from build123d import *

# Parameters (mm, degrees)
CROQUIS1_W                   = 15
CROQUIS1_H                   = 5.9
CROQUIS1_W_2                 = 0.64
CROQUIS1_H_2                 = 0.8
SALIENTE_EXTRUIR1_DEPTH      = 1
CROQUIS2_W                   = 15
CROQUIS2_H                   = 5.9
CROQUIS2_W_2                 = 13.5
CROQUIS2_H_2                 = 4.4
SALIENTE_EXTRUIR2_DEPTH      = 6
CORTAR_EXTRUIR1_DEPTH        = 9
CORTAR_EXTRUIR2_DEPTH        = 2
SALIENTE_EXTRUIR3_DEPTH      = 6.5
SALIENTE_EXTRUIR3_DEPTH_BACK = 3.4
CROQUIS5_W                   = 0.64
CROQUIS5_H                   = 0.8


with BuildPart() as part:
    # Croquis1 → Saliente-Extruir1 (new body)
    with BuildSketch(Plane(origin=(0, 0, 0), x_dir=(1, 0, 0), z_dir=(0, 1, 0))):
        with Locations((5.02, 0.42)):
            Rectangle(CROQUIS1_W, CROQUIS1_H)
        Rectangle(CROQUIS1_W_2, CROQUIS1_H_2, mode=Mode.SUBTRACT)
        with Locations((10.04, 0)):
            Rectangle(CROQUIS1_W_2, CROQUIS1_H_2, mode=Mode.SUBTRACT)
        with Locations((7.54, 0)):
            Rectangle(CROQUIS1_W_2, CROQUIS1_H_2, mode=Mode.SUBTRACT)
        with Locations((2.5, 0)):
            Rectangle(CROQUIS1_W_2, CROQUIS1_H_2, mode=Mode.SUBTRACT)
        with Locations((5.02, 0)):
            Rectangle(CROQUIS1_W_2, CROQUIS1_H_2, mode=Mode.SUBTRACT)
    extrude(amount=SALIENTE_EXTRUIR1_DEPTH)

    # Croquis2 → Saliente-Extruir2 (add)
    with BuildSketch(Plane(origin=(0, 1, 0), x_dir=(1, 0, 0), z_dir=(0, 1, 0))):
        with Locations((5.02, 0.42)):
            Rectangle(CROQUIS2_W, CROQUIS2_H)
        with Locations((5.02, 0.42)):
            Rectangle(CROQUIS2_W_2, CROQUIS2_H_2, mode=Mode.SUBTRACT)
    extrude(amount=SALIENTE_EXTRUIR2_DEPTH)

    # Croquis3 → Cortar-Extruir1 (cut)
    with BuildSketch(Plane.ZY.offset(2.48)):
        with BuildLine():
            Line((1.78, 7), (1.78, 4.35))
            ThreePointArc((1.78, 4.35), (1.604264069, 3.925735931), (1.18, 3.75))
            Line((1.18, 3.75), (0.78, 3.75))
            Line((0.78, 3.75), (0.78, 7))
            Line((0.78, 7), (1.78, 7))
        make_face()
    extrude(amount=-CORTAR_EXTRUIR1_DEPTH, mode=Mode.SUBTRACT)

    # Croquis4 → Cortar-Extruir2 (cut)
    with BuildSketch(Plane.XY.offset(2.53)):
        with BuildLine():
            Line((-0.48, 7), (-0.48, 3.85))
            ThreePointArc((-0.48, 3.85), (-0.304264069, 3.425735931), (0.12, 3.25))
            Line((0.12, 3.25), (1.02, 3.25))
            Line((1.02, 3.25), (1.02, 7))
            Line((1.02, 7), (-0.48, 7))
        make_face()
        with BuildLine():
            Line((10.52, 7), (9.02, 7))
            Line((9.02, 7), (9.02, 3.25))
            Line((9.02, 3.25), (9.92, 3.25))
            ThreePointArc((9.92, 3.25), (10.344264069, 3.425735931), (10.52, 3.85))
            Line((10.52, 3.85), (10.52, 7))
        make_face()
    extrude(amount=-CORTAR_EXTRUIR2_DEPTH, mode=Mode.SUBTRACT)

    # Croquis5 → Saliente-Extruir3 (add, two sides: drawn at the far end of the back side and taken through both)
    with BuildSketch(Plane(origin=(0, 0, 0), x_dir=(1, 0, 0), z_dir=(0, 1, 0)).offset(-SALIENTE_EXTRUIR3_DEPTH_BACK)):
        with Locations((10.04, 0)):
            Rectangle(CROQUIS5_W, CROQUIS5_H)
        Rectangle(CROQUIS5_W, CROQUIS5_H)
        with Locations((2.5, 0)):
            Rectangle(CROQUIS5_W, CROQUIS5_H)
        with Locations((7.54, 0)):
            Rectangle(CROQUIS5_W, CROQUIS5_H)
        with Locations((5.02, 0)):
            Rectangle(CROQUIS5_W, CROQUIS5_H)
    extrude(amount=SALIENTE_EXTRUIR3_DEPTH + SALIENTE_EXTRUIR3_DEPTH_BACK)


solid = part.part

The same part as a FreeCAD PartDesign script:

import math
import FreeCAD as App
import Part
import Sketcher

V = App.Vector
Q = App.Units.Quantity

doc = App.newDocument("Part")
body = doc.addObject("PartDesign::Body", "Body")

# Sketch on XZ plane
sketch1 = body.newObject("Sketcher::SketchObject", "Sketch")
sketch1.AttachmentSupport = (doc.getObject("XZ_Plane"), [""])
sketch1.MapMode = "FlatFace"
sketch1.addGeometry(Part.LineSegment(V(-2.5, -3.4, 0), V(-2.5, 2.5, 0)), False)
sketch1.addGeometry(Part.LineSegment(V(-2.5, 2.5, 0), V(12.5, 2.5, 0)), False)
sketch1.addGeometry(Part.LineSegment(V(12.5, 2.5, 0), V(12.5, -3.4, 0)), False)
sketch1.addGeometry(Part.LineSegment(V(12.5, -3.4, 0), V(-2.5, -3.4, 0)), False)
sketch1.addGeometry(Part.LineSegment(V(0.3, 0.4, 0), V(-0.3, 0.4, 0)), False)
sketch1.addGeometry(Part.LineSegment(V(-0.3, 0.4, 0), V(-0.3, -0.4, 0)), False)
sketch1.addGeometry(Part.LineSegment(V(-0.3, -0.4, 0), V(0.3, -0.4, 0)), False)
sketch1.addGeometry(Part.LineSegment(V(0.3, -0.4, 0), V(0.3, 0.4, 0)), False)
sketch1.addGeometry(Part.LineSegment(V(2.8, 0.4, 0), V(2.2, 0.4, 0)), False)
sketch1.addGeometry(Part.LineSegment(V(2.2, 0.4, 0), V(2.2, -0.4, 0)), False)
sketch1.addGeometry(Part.LineSegment(V(2.2, -0.4, 0), V(2.8, -0.4, 0)), False)
sketch1.addGeometry(Part.LineSegment(V(2.8, -0.4, 0), V(2.8, 0.4, 0)), False)
sketch1.addGeometry(Part.LineSegment(V(5.3, 0.4, 0), V(4.7, 0.4, 0)), False)
sketch1.addGeometry(Part.LineSegment(V(4.7, 0.4, 0), V(4.7, -0.4, 0)), False)
sketch1.addGeometry(Part.LineSegment(V(4.7, -0.4, 0), V(5.3, -0.4, 0)), False)
sketch1.addGeometry(Part.LineSegment(V(5.3, -0.4, 0), V(5.3, 0.4, 0)), False)
sketch1.addGeometry(Part.LineSegment(V(7.9, 0.4, 0), V(7.2, 0.4, 0)), False)
sketch1.addGeometry(Part.LineSegment(V(7.2, 0.4, 0), V(7.2, -0.4, 0)), False)
sketch1.addGeometry(Part.LineSegment(V(7.2, -0.4, 0), V(7.9, -0.4, 0)), False)
sketch1.addGeometry(Part.LineSegment(V(7.9, -0.4, 0), V(7.9, 0.4, 0)), False)
sketch1.addGeometry(Part.LineSegment(V(10.4, 0.4, 0), V(9.7, 0.4, 0)), False)
sketch1.addGeometry(Part.LineSegment(V(9.7, 0.4, 0), V(9.7, -0.4, 0)), False)
sketch1.addGeometry(Part.LineSegment(V(9.7, -0.4, 0), V(10.4, -0.4, 0)), False)
sketch1.addGeometry(Part.LineSegment(V(10.4, -0.4, 0), V(10.4, 0.4, 0)), False)
sketch1.addConstraint(Sketcher.Constraint("Coincident", 0, 2, 1, 1))
sketch1.addConstraint(Sketcher.Constraint("Coincident", 1, 2, 2, 1))
sketch1.addConstraint(Sketcher.Constraint("Coincident", 2, 2, 3, 1))
sketch1.addConstraint(Sketcher.Constraint("Coincident", 3, 2, 0, 1))
sketch1.addConstraint(Sketcher.Constraint("Coincident", 4, 2, 5, 1))
sketch1.addConstraint(Sketcher.Constraint("Coincident", 5, 2, 6, 1))
sketch1.addConstraint(Sketcher.Constraint("Coincident", 6, 2, 7, 1))
sketch1.addConstraint(Sketcher.Constraint("Coincident", 7, 2, 4, 1))
sketch1.addConstraint(Sketcher.Constraint("Coincident", 8, 2, 9, 1))
sketch1.addConstraint(Sketcher.Constraint("Coincident", 9, 2, 10, 1))
sketch1.addConstraint(Sketcher.Constraint("Coincident", 10, 2, 11, 1))
sketch1.addConstraint(Sketcher.Constraint("Coincident", 11, 2, 8, 1))
sketch1.addConstraint(Sketcher.Constraint("Coincident", 12, 2, 13, 1))
sketch1.addConstraint(Sketcher.Constraint("Coincident", 13, 2, 14, 1))
sketch1.addConstraint(Sketcher.Constraint("Coincident", 14, 2, 15, 1))
sketch1.addConstraint(Sketcher.Constraint("Coincident", 15, 2, 12, 1))
sketch1.addConstraint(Sketcher.Constraint("Coincident", 16, 2, 17, 1))
sketch1.addConstraint(Sketcher.Constraint("Coincident", 17, 2, 18, 1))
sketch1.addConstraint(Sketcher.Constraint("Coincident", 18, 2, 19, 1))
sketch1.addConstraint(Sketcher.Constraint("Coincident", 19, 2, 16, 1))
sketch1.addConstraint(Sketcher.Constraint("Coincident", 20, 2, 21, 1))
sketch1.addConstraint(Sketcher.Constraint("Coincident", 21, 2, 22, 1))
sketch1.addConstraint(Sketcher.Constraint("Coincident", 22, 2, 23, 1))
sketch1.addConstraint(Sketcher.Constraint("Coincident", 23, 2, 20, 1))
sketch1.addConstraint(Sketcher.Constraint("Vertical", 0))
sketch1.addConstraint(Sketcher.Constraint("Horizontal", 1))
sketch1.addConstraint(Sketcher.Constraint("Vertical", 2))
sketch1.addConstraint(Sketcher.Constraint("Horizontal", 3))
sketch1.addConstraint(Sketcher.Constraint("Horizontal", 4))
sketch1.addConstraint(Sketcher.Constraint("Vertical", 5))
sketch1.addConstraint(Sketcher.Constraint("Horizontal", 6))
sketch1.addConstraint(Sketcher.Constraint("Vertical", 7))
sketch1.addConstraint(Sketcher.Constraint("Horizontal", 8))
sketch1.addConstraint(Sketcher.Constraint("Vertical", 9))
sketch1.addConstraint(Sketcher.Constraint("Horizontal", 10))
sketch1.addConstraint(Sketcher.Constraint("Vertical", 11))
sketch1.addConstraint(Sketcher.Constraint("Horizontal", 12))
sketch1.addConstraint(Sketcher.Constraint("Vertical", 13))
sketch1.addConstraint(Sketcher.Constraint("Horizontal", 14))
sketch1.addConstraint(Sketcher.Constraint("Vertical", 15))
sketch1.addConstraint(Sketcher.Constraint("Horizontal", 16))
sketch1.addConstraint(Sketcher.Constraint("Vertical", 17))
sketch1.addConstraint(Sketcher.Constraint("Horizontal", 18))
sketch1.addConstraint(Sketcher.Constraint("Vertical", 19))
sketch1.addConstraint(Sketcher.Constraint("Horizontal", 20))
sketch1.addConstraint(Sketcher.Constraint("Vertical", 21))
sketch1.addConstraint(Sketcher.Constraint("Horizontal", 22))
sketch1.addConstraint(Sketcher.Constraint("Vertical", 23))
sketch1.addConstraint(Sketcher.Constraint("Symmetric", 4, 2, 6, 2, -1, 1))
sketch1.addConstraint(Sketcher.Constraint("Horizontal", 7, 2, 8, 2))
sketch1.addConstraint(Sketcher.Constraint("Horizontal", 6, 2, 9, 2))
sketch1.addConstraint(Sketcher.Constraint("Horizontal", 11, 2, 12, 2))
sketch1.addConstraint(Sketcher.Constraint("Horizontal", 10, 2, 13, 2))
sketch1.addConstraint(Sketcher.Constraint("Horizontal", 15, 2, 16, 2))
sketch1.addConstraint(Sketcher.Constraint("Horizontal", 14, 2, 17, 2))
sketch1.addConstraint(Sketcher.Constraint("Horizontal", 19, 2, 20, 2))
sketch1.addConstraint(Sketcher.Constraint("Horizontal", 18, 2, 21, 2))
sketch1.addConstraint(Sketcher.Constraint("Equal", 6, 8))
sketch1.addConstraint(Sketcher.Constraint("Equal", 10, 12))
sketch1.addConstraint(Sketcher.Constraint("Equal", 14, 16))
sketch1.addConstraint(Sketcher.Constraint("Equal", 18, 20))
sketch1.addConstraint(Sketcher.Constraint("DistanceX", 1, 1, 1, 2, Q("15 mm")))
sketch1.addConstraint(Sketcher.Constraint("DistanceY", 0, 1, 0, 2, Q("5.9 mm")))
sketch1.addConstraint(Sketcher.Constraint("DistanceY", 5, 2, 5, 1, Q("0.8 mm")))
sketch1.addConstraint(Sketcher.Constraint("DistanceX", 4, 2, 4, 1, Q("0.64 mm")))
sketch1.addConstraint(Sketcher.Constraint("DistanceX", -1, 1, 12, 2, Q("4.7 mm")))
sketch1.addConstraint(Sketcher.Constraint("DistanceX", 0, 2, 6, 2, Q("2.8 mm")))
sketch1.addConstraint(Sketcher.Constraint("DistanceX", 4, 2, 8, 2, Q("2.5 mm")))
sketch1.addConstraint(Sketcher.Constraint("DistanceX", 11, 2, 16, 2, Q("4.4 mm")))
sketch1.addConstraint(Sketcher.Constraint("DistanceX", 16, 2, 20, 2, Q("2.5 mm")))
sketch1.addConstraint(Sketcher.Constraint("DistanceY", -1, 1, 0, 2, Q("2.53 mm")))
pad1 = body.newObject("PartDesign::Pad", "Pad")
pad1.Profile = sketch1
pad1.Length = 1
pad1.Reversed = True

# Sketch on XZ plane
sketch2 = body.newObject("Sketcher::SketchObject", "Sketch001")
sketch2.AttachmentSupport = (doc.getObject("XZ_Plane"), [""])
sketch2.MapMode = "FlatFace"
sketch2.AttachmentOffset = App.Placement(V(0, 0, -1), App.Rotation())
sketch2.addGeometry(Part.LineSegment(V(-2.5, -3.4, 0), V(-2.5, 2.5, 0)), False)
sketch2.addGeometry(Part.LineSegment(V(-2.5, 2.5, 0), V(12.5, 2.5, 0)), False)
sketch2.addGeometry(Part.LineSegment(V(12.5, 2.5, 0), V(12.5, -3.4, 0)), False)
sketch2.addGeometry(Part.LineSegment(V(12.5, -3.4, 0), V(-2.5, -3.4, 0)), False)
sketch2.addGeometry(Part.LineSegment(V(11.8, 1.8, 0), V(-1.7, 1.8, 0)), False)
sketch2.addGeometry(Part.LineSegment(V(-1.7, 1.8, 0), V(-1.7, -2.6, 0)), False)
sketch2.addGeometry(Part.LineSegment(V(-1.7, -2.6, 0), V(11.8, -2.6, 0)), False)
sketch2.addGeometry(Part.LineSegment(V(11.8, -2.6, 0), V(11.8, 1.8, 0)), False)
sketch2.addConstraint(Sketcher.Constraint("Coincident", 0, 2, 1, 1))
sketch2.addConstraint(Sketcher.Constraint("Coincident", 1, 2, 2, 1))
sketch2.addConstraint(Sketcher.Constraint("Coincident", 2, 2, 3, 1))
sketch2.addConstraint(Sketcher.Constraint("Coincident", 3, 2, 0, 1))
sketch2.addConstraint(Sketcher.Constraint("Coincident", 4, 2, 5, 1))
sketch2.addConstraint(Sketcher.Constraint("Coincident", 5, 2, 6, 1))
sketch2.addConstraint(Sketcher.Constraint("Coincident", 6, 2, 7, 1))
sketch2.addConstraint(Sketcher.Constraint("Coincident", 7, 2, 4, 1))
sketch2.addConstraint(Sketcher.Constraint("Vertical", 0))
sketch2.addConstraint(Sketcher.Constraint("Horizontal", 1))
sketch2.addConstraint(Sketcher.Constraint("Vertical", 2))
sketch2.addConstraint(Sketcher.Constraint("Horizontal", 3))
sketch2.addConstraint(Sketcher.Constraint("Horizontal", 4))
sketch2.addConstraint(Sketcher.Constraint("Vertical", 5))
sketch2.addConstraint(Sketcher.Constraint("Horizontal", 6))
sketch2.addConstraint(Sketcher.Constraint("Vertical", 7))
sketch2.addConstraint(Sketcher.Constraint("DistanceX", 1, 1, 1, 2, Q("15 mm")))
sketch2.addConstraint(Sketcher.Constraint("DistanceX", 4, 2, 4, 1, Q("13.5 mm")))
sketch2.addConstraint(Sketcher.Constraint("DistanceY", 0, 1, 0, 2, Q("5.9 mm")))
sketch2.addConstraint(Sketcher.Constraint("DistanceY", 5, 2, 5, 1, Q("4.4 mm")))
sketch2.addConstraint(Sketcher.Constraint("DistanceX", 0, 2, -1, 1, Q("2.48 mm")))
sketch2.addConstraint(Sketcher.Constraint("DistanceY", -1, 1, 0, 2, Q("2.53 mm")))
sketch2.addConstraint(Sketcher.Constraint("DistanceX", 4, 2, -1, 1, Q("1.73 mm")))
sketch2.addConstraint(Sketcher.Constraint("DistanceY", -1, 1, 4, 2, Q("1.78 mm")))
pad2 = body.newObject("PartDesign::Pad", "Pad001")
pad2.Profile = sketch2
pad2.Length = 6
pad2.Reversed = True

# Sketch on YZ plane
sketch3 = body.newObject("Sketcher::SketchObject", "Sketch002")
sketch3.AttachmentSupport = (doc.getObject("YZ_Plane"), [""])
sketch3.MapMode = "FlatFace"
sketch3.AttachmentOffset = App.Placement(V(0, 0, -2.48), App.Rotation())
sketch3.addGeometry(Part.LineSegment(V(4.35, 1.78, 0), V(7, 1.78, 0)), False)
sketch3.addGeometry(Part.LineSegment(V(7, 1.78, 0), V(7, 0.78, 0)), False)
sketch3.addGeometry(Part.LineSegment(V(7, 0.78, 0), V(3.75, 0.78, 0)), False)
sketch3.addGeometry(Part.LineSegment(V(3.75, 0.78, 0), V(3.75, 1.18, 0)), False)
sketch3.addGeometry(Part.ArcOfCircle(Part.Circle(V(4.35, 1.18, 0), V(0, 0, 1), 0.6), math.radians(90), math.radians(180)), False)
sketch3.addConstraint(Sketcher.Constraint("Coincident", 0, 2, 1, 1))
sketch3.addConstraint(Sketcher.Constraint("Coincident", 1, 2, 2, 1))
sketch3.addConstraint(Sketcher.Constraint("Coincident", 2, 2, 3, 1))
sketch3.addConstraint(Sketcher.Constraint("Tangent", 3, 2, 4, 2))
sketch3.addConstraint(Sketcher.Constraint("Tangent", 4, 1, 0, 1))
sketch3.addConstraint(Sketcher.Constraint("Horizontal", 0))
sketch3.addConstraint(Sketcher.Constraint("Vertical", 1))
sketch3.addConstraint(Sketcher.Constraint("Horizontal", 2))
sketch3.addConstraint(Sketcher.Constraint("Vertical", 3))
sketch3.addConstraint(Sketcher.Constraint("Radius", 4, Q("0.6 mm")))
sketch3.addConstraint(Sketcher.Constraint("DistanceY", 1, 2, 1, 1, Q("1 mm")))
sketch3.addConstraint(Sketcher.Constraint("DistanceX", -1, 1, 0, 2, Q("7 mm")))
sketch3.addConstraint(Sketcher.Constraint("DistanceX", 0, 1, 0, 2, Q("2.65 mm")))
sketch3.addConstraint(Sketcher.Constraint("DistanceY", -1, 1, 4, 3, Q("1.18 mm")))
pocket1 = body.newObject("PartDesign::Pocket", "Pocket")
pocket1.Profile = sketch3
pocket1.Length = 9
pocket1.Reversed = True

# Sketch on XY plane
sketch4 = body.newObject("Sketcher::SketchObject", "Sketch003")
sketch4.AttachmentSupport = (doc.getObject("XY_Plane"), [""])
sketch4.MapMode = "FlatFace"
sketch4.AttachmentOffset = App.Placement(V(0, 0, 2.53), App.Rotation())
sketch4.addGeometry(Part.LineSegment(V(-0.5, 7, 0), V(-0.5, 3.9, 0)), False)
sketch4.addGeometry(Part.ArcOfCircle(Part.Circle(V(0.1, 3.8, 0), V(0, 0, 1), 0.6), math.radians(180), math.radians(270)), False)
sketch4.addGeometry(Part.LineSegment(V(0.1, 3.2, 0), V(1, 3.2, 0)), False)
sketch4.addGeometry(Part.LineSegment(V(1, 3.2, 0), V(1, 7, 0)), False)
sketch4.addGeometry(Part.LineSegment(V(1, 7, 0), V(-0.5, 7, 0)), False)
sketch4.addGeometry(Part.LineSegment(V(10.5, 7, 0), V(9, 7, 0)), False)
sketch4.addGeometry(Part.LineSegment(V(9, 7, 0), V(9, 3.2, 0)), False)
sketch4.addGeometry(Part.LineSegment(V(9, 3.2, 0), V(9.9, 3.2, 0)), False)
sketch4.addGeometry(Part.ArcOfCircle(Part.Circle(V(9.9, 3.8, 0), V(0, 0, 1), 0.6), math.radians(-90), math.radians(0)), False)
sketch4.addGeometry(Part.LineSegment(V(10.5, 3.9, 0), V(10.5, 7, 0)), False)
sketch4.addConstraint(Sketcher.Constraint("Tangent", 0, 2, 1, 1))
sketch4.addConstraint(Sketcher.Constraint("Tangent", 1, 2, 2, 1))
sketch4.addConstraint(Sketcher.Constraint("Coincident", 2, 2, 3, 1))
sketch4.addConstraint(Sketcher.Constraint("Coincident", 3, 2, 4, 1))
sketch4.addConstraint(Sketcher.Constraint("Coincident", 4, 2, 0, 1))
sketch4.addConstraint(Sketcher.Constraint("Coincident", 5, 2, 6, 1))
sketch4.addConstraint(Sketcher.Constraint("Coincident", 6, 2, 7, 1))
sketch4.addConstraint(Sketcher.Constraint("Tangent", 7, 2, 8, 1))
sketch4.addConstraint(Sketcher.Constraint("Tangent", 8, 2, 9, 1))
sketch4.addConstraint(Sketcher.Constraint("Coincident", 9, 2, 5, 1))
sketch4.addConstraint(Sketcher.Constraint("Vertical", 0))
sketch4.addConstraint(Sketcher.Constraint("Horizontal", 2))
sketch4.addConstraint(Sketcher.Constraint("Vertical", 3))
sketch4.addConstraint(Sketcher.Constraint("Horizontal", 4))
sketch4.addConstraint(Sketcher.Constraint("Horizontal", 5))
sketch4.addConstraint(Sketcher.Constraint("Vertical", 6))
sketch4.addConstraint(Sketcher.Constraint("Horizontal", 7))
sketch4.addConstraint(Sketcher.Constraint("Vertical", 9))
sketch4.addConstraint(Sketcher.Constraint("Equal", 1, 8))
sketch4.addConstraint(Sketcher.Constraint("Horizontal", 1, 3, 8, 3))
sketch4.addConstraint(Sketcher.Constraint("Horizontal", 4, 2, 5, 2))
sketch4.addConstraint(Sketcher.Constraint("Equal", 4, 5))
sketch4.addConstraint(Sketcher.Constraint("Radius", 1, Q("0.6 mm")))
sketch4.addConstraint(Sketcher.Constraint("DistanceX", 2, 1, 2, 2, Q("0.9 mm")))
sketch4.addConstraint(Sketcher.Constraint("DistanceY", -1, 1, 3, 2, Q("7 mm")))
sketch4.addConstraint(Sketcher.Constraint("DistanceX", 3, 2, 5, 2, Q("8 mm")))
sketch4.addConstraint(Sketcher.Constraint("DistanceY", 0, 2, 0, 1, Q("3.15 mm")))
sketch4.addConstraint(Sketcher.Constraint("DistanceX", -1, 1, 1, 3, Q("0.12 mm")))
pocket2 = body.newObject("PartDesign::Pocket", "Pocket001")
pocket2.Profile = sketch4
pocket2.Length = 2

# Sketch on XZ plane
sketch5 = body.newObject("Sketcher::SketchObject", "Sketch004")
sketch5.AttachmentSupport = (doc.getObject("XZ_Plane"), [""])
sketch5.MapMode = "FlatFace"
sketch5.addGeometry(Part.LineSegment(V(9.7, -0.4, 0), V(9.7, 0.4, 0)), False)
sketch5.addGeometry(Part.LineSegment(V(9.7, 0.4, 0), V(10.4, 0.4, 0)), False)
sketch5.addGeometry(Part.LineSegment(V(10.4, 0.4, 0), V(10.4, -0.4, 0)), False)
sketch5.addGeometry(Part.LineSegment(V(10.4, -0.4, 0), V(9.7, -0.4, 0)), False)
sketch5.addGeometry(Part.LineSegment(V(-0.3, -0.4, 0), V(-0.3, 0.4, 0)), False)
sketch5.addGeometry(Part.LineSegment(V(-0.3, 0.4, 0), V(0.3, 0.4, 0)), False)
sketch5.addGeometry(Part.LineSegment(V(0.3, 0.4, 0), V(0.3, -0.4, 0)), False)
sketch5.addGeometry(Part.LineSegment(V(0.3, -0.4, 0), V(-0.3, -0.4, 0)), False)
sketch5.addGeometry(Part.LineSegment(V(2.2, -0.4, 0), V(2.2, 0.4, 0)), False)
sketch5.addGeometry(Part.LineSegment(V(2.2, 0.4, 0), V(2.8, 0.4, 0)), False)
sketch5.addGeometry(Part.LineSegment(V(2.8, 0.4, 0), V(2.8, -0.4, 0)), False)
sketch5.addGeometry(Part.LineSegment(V(2.8, -0.4, 0), V(2.2, -0.4, 0)), False)
sketch5.addGeometry(Part.LineSegment(V(7.2, -0.4, 0), V(7.2, 0.4, 0)), False)
sketch5.addGeometry(Part.LineSegment(V(7.2, 0.4, 0), V(7.9, 0.4, 0)), False)
sketch5.addGeometry(Part.LineSegment(V(7.9, 0.4, 0), V(7.9, -0.4, 0)), False)
sketch5.addGeometry(Part.LineSegment(V(7.9, -0.4, 0), V(7.2, -0.4, 0)), False)
sketch5.addGeometry(Part.LineSegment(V(4.7, -0.4, 0), V(4.7, 0.4, 0)), False)
sketch5.addGeometry(Part.LineSegment(V(4.7, 0.4, 0), V(5.3, 0.4, 0)), False)
sketch5.addGeometry(Part.LineSegment(V(5.3, 0.4, 0), V(5.3, -0.4, 0)), False)
sketch5.addGeometry(Part.LineSegment(V(5.3, -0.4, 0), V(4.7, -0.4, 0)), False)
sketch5.addConstraint(Sketcher.Constraint("Coincident", 0, 2, 1, 1))
sketch5.addConstraint(Sketcher.Constraint("Coincident", 1, 2, 2, 1))
sketch5.addConstraint(Sketcher.Constraint("Coincident", 2, 2, 3, 1))
sketch5.addConstraint(Sketcher.Constraint("Coincident", 3, 2, 0, 1))
sketch5.addConstraint(Sketcher.Constraint("Coincident", 4, 2, 5, 1))
sketch5.addConstraint(Sketcher.Constraint("Coincident", 5, 2, 6, 1))
sketch5.addConstraint(Sketcher.Constraint("Coincident", 6, 2, 7, 1))
sketch5.addConstraint(Sketcher.Constraint("Coincident", 7, 2, 4, 1))
sketch5.addConstraint(Sketcher.Constraint("Coincident", 8, 2, 9, 1))
sketch5.addConstraint(Sketcher.Constraint("Coincident", 9, 2, 10, 1))
sketch5.addConstraint(Sketcher.Constraint("Coincident", 10, 2, 11, 1))
sketch5.addConstraint(Sketcher.Constraint("Coincident", 11, 2, 8, 1))
sketch5.addConstraint(Sketcher.Constraint("Coincident", 12, 2, 13, 1))
sketch5.addConstraint(Sketcher.Constraint("Coincident", 13, 2, 14, 1))
sketch5.addConstraint(Sketcher.Constraint("Coincident", 14, 2, 15, 1))
sketch5.addConstraint(Sketcher.Constraint("Coincident", 15, 2, 12, 1))
sketch5.addConstraint(Sketcher.Constraint("Coincident", 16, 2, 17, 1))
sketch5.addConstraint(Sketcher.Constraint("Coincident", 17, 2, 18, 1))
sketch5.addConstraint(Sketcher.Constraint("Coincident", 18, 2, 19, 1))
sketch5.addConstraint(Sketcher.Constraint("Coincident", 19, 2, 16, 1))
sketch5.addConstraint(Sketcher.Constraint("Vertical", 0))
sketch5.addConstraint(Sketcher.Constraint("Horizontal", 1))
sketch5.addConstraint(Sketcher.Constraint("Vertical", 2))
sketch5.addConstraint(Sketcher.Constraint("Horizontal", 3))
sketch5.addConstraint(Sketcher.Constraint("Vertical", 4))
sketch5.addConstraint(Sketcher.Constraint("Horizontal", 5))
sketch5.addConstraint(Sketcher.Constraint("Vertical", 6))
sketch5.addConstraint(Sketcher.Constraint("Horizontal", 7))
sketch5.addConstraint(Sketcher.Constraint("Vertical", 8))
sketch5.addConstraint(Sketcher.Constraint("Horizontal", 9))
sketch5.addConstraint(Sketcher.Constraint("Vertical", 10))
sketch5.addConstraint(Sketcher.Constraint("Horizontal", 11))
sketch5.addConstraint(Sketcher.Constraint("Vertical", 12))
sketch5.addConstraint(Sketcher.Constraint("Horizontal", 13))
sketch5.addConstraint(Sketcher.Constraint("Vertical", 14))
sketch5.addConstraint(Sketcher.Constraint("Horizontal", 15))
sketch5.addConstraint(Sketcher.Constraint("Vertical", 16))
sketch5.addConstraint(Sketcher.Constraint("Horizontal", 17))
sketch5.addConstraint(Sketcher.Constraint("Vertical", 18))
sketch5.addConstraint(Sketcher.Constraint("Horizontal", 19))
sketch5.addConstraint(Sketcher.Constraint("Symmetric", 4, 2, 6, 2, -1, 1))
sketch5.addConstraint(Sketcher.Constraint("Horizontal", 1, 2, 4, 2))
sketch5.addConstraint(Sketcher.Constraint("Horizontal", 3, 2, 6, 2))
sketch5.addConstraint(Sketcher.Constraint("Horizontal", 5, 2, 8, 2))
sketch5.addConstraint(Sketcher.Constraint("Horizontal", 7, 2, 10, 2))
sketch5.addConstraint(Sketcher.Constraint("Horizontal", 9, 2, 12, 2))
sketch5.addConstraint(Sketcher.Constraint("Horizontal", 11, 2, 14, 2))
sketch5.addConstraint(Sketcher.Constraint("Horizontal", 13, 2, 16, 2))
sketch5.addConstraint(Sketcher.Constraint("Horizontal", 15, 2, 18, 2))
sketch5.addConstraint(Sketcher.Constraint("Equal", 3, 5))
sketch5.addConstraint(Sketcher.Constraint("Equal", 7, 9))
sketch5.addConstraint(Sketcher.Constraint("Equal", 11, 13))
sketch5.addConstraint(Sketcher.Constraint("Equal", 15, 17))
sketch5.addConstraint(Sketcher.Constraint("DistanceY", 0, 1, 0, 2, Q("0.8 mm")))
sketch5.addConstraint(Sketcher.Constraint("DistanceX", 1, 1, 1, 2, Q("0.64 mm")))
sketch5.addConstraint(Sketcher.Constraint("DistanceX", -1, 1, 16, 2, Q("4.7 mm")))
sketch5.addConstraint(Sketcher.Constraint("DistanceX", 5, 2, 0, 2, Q("9.4 mm")))
sketch5.addConstraint(Sketcher.Constraint("DistanceX", 4, 2, 8, 2, Q("2.5 mm")))
sketch5.addConstraint(Sketcher.Constraint("DistanceX", 12, 2, 0, 2, Q("2.5 mm")))
pad3 = body.newObject("PartDesign::Pad", "Pad002")
pad3.Profile = sketch5
pad3.Type = "TwoLengths"
pad3.Length = 6.5
pad3.Length2 = 3.4
pad3.Reversed = True

doc.recompute()
